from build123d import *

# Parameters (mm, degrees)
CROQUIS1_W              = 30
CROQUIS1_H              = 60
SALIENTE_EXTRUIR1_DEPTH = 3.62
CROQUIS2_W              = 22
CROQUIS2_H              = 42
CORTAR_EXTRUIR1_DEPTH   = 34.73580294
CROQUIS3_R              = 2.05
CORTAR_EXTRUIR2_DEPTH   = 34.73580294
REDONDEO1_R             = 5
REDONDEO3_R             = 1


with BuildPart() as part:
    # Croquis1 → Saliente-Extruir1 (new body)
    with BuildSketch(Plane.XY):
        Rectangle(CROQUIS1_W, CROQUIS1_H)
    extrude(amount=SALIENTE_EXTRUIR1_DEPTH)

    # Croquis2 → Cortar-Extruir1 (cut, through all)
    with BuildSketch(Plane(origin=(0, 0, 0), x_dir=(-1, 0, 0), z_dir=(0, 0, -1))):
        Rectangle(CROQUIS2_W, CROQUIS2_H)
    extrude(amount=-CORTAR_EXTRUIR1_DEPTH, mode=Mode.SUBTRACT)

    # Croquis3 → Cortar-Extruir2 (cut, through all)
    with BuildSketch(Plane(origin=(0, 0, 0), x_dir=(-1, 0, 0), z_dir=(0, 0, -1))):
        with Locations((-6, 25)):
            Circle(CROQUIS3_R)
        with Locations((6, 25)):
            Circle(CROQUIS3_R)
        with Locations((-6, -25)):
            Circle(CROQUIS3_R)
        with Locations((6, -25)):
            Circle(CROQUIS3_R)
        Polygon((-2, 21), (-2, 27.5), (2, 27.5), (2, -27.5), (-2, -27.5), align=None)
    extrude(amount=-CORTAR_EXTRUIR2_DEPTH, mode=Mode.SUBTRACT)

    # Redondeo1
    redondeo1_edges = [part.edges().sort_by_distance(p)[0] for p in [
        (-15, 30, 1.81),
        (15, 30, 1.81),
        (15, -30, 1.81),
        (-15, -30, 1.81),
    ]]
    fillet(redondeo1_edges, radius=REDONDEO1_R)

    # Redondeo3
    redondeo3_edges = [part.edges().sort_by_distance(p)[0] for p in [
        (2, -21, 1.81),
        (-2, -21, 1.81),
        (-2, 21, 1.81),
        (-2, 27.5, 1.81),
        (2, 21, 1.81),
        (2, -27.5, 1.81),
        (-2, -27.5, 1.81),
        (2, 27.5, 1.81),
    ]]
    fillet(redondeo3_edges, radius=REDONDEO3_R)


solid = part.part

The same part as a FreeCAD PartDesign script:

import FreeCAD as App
import Part
import Sketcher
from FreeCAD import Vector


def edges_at(feature, points):
    """Names of the edges that pass closest to the given points."""
    edges = feature.Shape.Edges
    near = lambda p: min(range(len(edges)), key=lambda i: edges[i].distToShape(Part.Vertex(*p))[0])
    return sorted({f"Edge{near(p) + 1}" for p in points})

doc = App.newDocument("Part")
body = doc.addObject("PartDesign::Body", "Body")

# Sketch on XY plane
sketch1 = body.newObject("Sketcher::SketchObject", "Sketch")
sketch1.AttachmentSupport = (doc.getObject("XY_Plane"), [""])
sketch1.MapMode = "FlatFace"
sketch1.addGeometry([
    Part.LineSegment(Vector(-15, 30, 0), Vector(-15, -30, 0)),
    Part.LineSegment(Vector(-15, -30, 0), Vector(15, -30, 0)),
    Part.LineSegment(Vector(15, -30, 0), Vector(15, 30, 0)),
    Part.LineSegment(Vector(15, 30, 0), Vector(-15, 30, 0)),
], False)
sketch1.addConstraint([
    Sketcher.Constraint("Coincident", 0, 2, 1, 1),
    Sketcher.Constraint("Coincident", 1, 2, 2, 1),
    Sketcher.Constraint("Coincident", 2, 2, 3, 1),
    Sketcher.Constraint("Coincident", 3, 2, 0, 1),
    Sketcher.Constraint("Vertical", 0),
    Sketcher.Constraint("Horizontal", 1),
    Sketcher.Constraint("Vertical", 2),
    Sketcher.Constraint("Horizontal", 3),
    Sketcher.Constraint("Symmetric", 0, 2, 2, 2, -1, 1),
    Sketcher.Constraint("DistanceX", 1, 1, 1, 2, 30.0),
    Sketcher.Constraint("DistanceY", 0, 2, 0, 1, 60.0),
])
pad1 = body.newObject("PartDesign::Pad", "Pad")
pad1.Profile = sketch1
pad1.Length = 3.62

# Sketch on XY plane
sketch2 = body.newObject("Sketcher::SketchObject", "Sketch001")
sketch2.AttachmentSupport = (doc.getObject("XY_Plane"), [""])
sketch2.MapMode = "FlatFace"
sketch2.addGeometry([
    Part.LineSegment(Vector(11, 21, 0), Vector(11, -21, 0)),
    Part.LineSegment(Vector(11, -21, 0), Vector(-11, -21, 0)),
    Part.LineSegment(Vector(-11, -21, 0), Vector(-11, 21, 0)),
    Part.LineSegment(Vector(-11, 21, 0), Vector(11, 21, 0)),
], False)
sketch2.addConstraint([
    Sketcher.Constraint("Coincident", 0, 2, 1, 1),
    Sketcher.Constraint("Coincident", 1, 2, 2, 1),
    Sketcher.Constraint("Coincident", 2, 2, 3, 1),
    Sketcher.Constraint("Coincident", 3, 2, 0, 1),
    Sketcher.Constraint("Vertical", 0),
    Sketcher.Constraint("Horizontal", 1),
    Sketcher.Constraint("Vertical", 2),
    Sketcher.Constraint("Horizontal", 3),
    Sketcher.Constraint("Symmetric", 0, 2, 2, 2, -1, 1),
    Sketcher.Constraint("DistanceX", 1, 2, 1, 1, 22.0),
    Sketcher.Constraint("DistanceY", 0, 2, 0, 1, 42.0),
])
pocket1 = body.newObject("PartDesign::Pocket", "Pocket")
pocket1.Profile = sketch2
pocket1.Type = "ThroughAll"
pocket1.Reversed = True

# Sketch on XY plane
sketch3 = body.newObject("Sketcher::SketchObject", "Sketch002")
sketch3.AttachmentSupport = (doc.getObject("XY_Plane"), [""])
sketch3.MapMode = "FlatFace"
sketch3.addGeometry([
    Part.Circle(Vector(6, 25, 0), Vector(0, 0, 1), 2),  # 0
    Part.Circle(Vector(-6, 25, 0), Vector(0, 0, 1), 2),  # 1
    Part.Circle(Vector(6, -25, 0), Vector(0, 0, 1), 2),  # 2
    Part.Circle(Vector(-6, -25, 0), Vector(0, 0, 1), 2),  # 3
    Part.LineSegment(Vector(2, 27.5, 0), Vector(2, -27.5, 0)),  # 4
    Part.LineSegment(Vector(2, -27.5, 0), Vector(-2, -27.5, 0)),  # 5
    Part.LineSegment(Vector(-2, -27.5, 0), Vector(-2, 27.5, 0)),  # 6
    Part.LineSegment(Vector(-2, 27.5, 0), Vector(2, 27.5, 0)),  # 7
], False)
sketch3.addConstraint([
    Sketcher.Constraint("Coincident", 4, 2, 5, 1),
    Sketcher.Constraint("Coincident", 5, 2, 6, 1),
    Sketcher.Constraint("Coincident", 6, 2, 7, 1),
    Sketcher.Constraint("Coincident", 7, 2, 4, 1),
    Sketcher.Constraint("Vertical", 4),
    Sketcher.Constraint("Horizontal", 5),
    Sketcher.Constraint("Vertical", 6),
    Sketcher.Constraint("Horizontal", 7),
    Sketcher.Constraint("Equal", 0, 1),
    Sketcher.Constraint("Equal", 1, 2),
    Sketcher.Constraint("Equal", 2, 3),
    Sketcher.Constraint("Symmetric", 1, 3, 2, 3, -1, 1),
    Sketcher.Constraint("Symmetric", 0, 3, 3, 3, -1, 1),
    Sketcher.Constraint("Symmetric", 4, 2, 6, 2, -1, 1),
    Sketcher.Constraint("Symmetric", 0, 3, 1, 3, -2),
    Sketcher.Constraint("Diameter", 0, 4.1),
    Sketcher.Constraint("DistanceX", 5, 2, 5, 1, 4.0),
    Sketcher.Constraint("DistanceY", 4, 2, 4, 1, 55.0),
    Sketcher.Constraint("DistanceX", -1, 1, 0, 3, 6.0),
    Sketcher.Constraint("DistanceY", -1, 1, 0, 3, 25.0),
])
pocket2 = body.newObject("PartDesign::Pocket", "Pocket001")
pocket2.Profile = sketch3
pocket2.Type = "ThroughAll"
pocket2.Reversed = True
doc.recompute()

fillet = body.newObject("PartDesign::Fillet", "Fillet")
fillet.Base = (pocket2, edges_at(pocket2, [
    (-15, 30, 1.81),
    (15, 30, 1.81),
    (15, -30, 1.81),
    (-15, -30, 1.81),
]))
fillet.Radius = 5
doc.recompute()

fillet2 = body.newObject("PartDesign::Fillet", "Fillet001")
fillet2.Base = (fillet, edges_at(fillet, [
    (2, -21, 1.81),
    (-2, -21, 1.81),
    (-2, 21, 1.81),
    (-2, 27.5, 1.81),
    (2, 21, 1.81),
    (2, -27.5, 1.81),
    (-2, -27.5, 1.81),
    (2, 27.5, 1.81),
]))
fillet2.Radius = 1

doc.recompute()
